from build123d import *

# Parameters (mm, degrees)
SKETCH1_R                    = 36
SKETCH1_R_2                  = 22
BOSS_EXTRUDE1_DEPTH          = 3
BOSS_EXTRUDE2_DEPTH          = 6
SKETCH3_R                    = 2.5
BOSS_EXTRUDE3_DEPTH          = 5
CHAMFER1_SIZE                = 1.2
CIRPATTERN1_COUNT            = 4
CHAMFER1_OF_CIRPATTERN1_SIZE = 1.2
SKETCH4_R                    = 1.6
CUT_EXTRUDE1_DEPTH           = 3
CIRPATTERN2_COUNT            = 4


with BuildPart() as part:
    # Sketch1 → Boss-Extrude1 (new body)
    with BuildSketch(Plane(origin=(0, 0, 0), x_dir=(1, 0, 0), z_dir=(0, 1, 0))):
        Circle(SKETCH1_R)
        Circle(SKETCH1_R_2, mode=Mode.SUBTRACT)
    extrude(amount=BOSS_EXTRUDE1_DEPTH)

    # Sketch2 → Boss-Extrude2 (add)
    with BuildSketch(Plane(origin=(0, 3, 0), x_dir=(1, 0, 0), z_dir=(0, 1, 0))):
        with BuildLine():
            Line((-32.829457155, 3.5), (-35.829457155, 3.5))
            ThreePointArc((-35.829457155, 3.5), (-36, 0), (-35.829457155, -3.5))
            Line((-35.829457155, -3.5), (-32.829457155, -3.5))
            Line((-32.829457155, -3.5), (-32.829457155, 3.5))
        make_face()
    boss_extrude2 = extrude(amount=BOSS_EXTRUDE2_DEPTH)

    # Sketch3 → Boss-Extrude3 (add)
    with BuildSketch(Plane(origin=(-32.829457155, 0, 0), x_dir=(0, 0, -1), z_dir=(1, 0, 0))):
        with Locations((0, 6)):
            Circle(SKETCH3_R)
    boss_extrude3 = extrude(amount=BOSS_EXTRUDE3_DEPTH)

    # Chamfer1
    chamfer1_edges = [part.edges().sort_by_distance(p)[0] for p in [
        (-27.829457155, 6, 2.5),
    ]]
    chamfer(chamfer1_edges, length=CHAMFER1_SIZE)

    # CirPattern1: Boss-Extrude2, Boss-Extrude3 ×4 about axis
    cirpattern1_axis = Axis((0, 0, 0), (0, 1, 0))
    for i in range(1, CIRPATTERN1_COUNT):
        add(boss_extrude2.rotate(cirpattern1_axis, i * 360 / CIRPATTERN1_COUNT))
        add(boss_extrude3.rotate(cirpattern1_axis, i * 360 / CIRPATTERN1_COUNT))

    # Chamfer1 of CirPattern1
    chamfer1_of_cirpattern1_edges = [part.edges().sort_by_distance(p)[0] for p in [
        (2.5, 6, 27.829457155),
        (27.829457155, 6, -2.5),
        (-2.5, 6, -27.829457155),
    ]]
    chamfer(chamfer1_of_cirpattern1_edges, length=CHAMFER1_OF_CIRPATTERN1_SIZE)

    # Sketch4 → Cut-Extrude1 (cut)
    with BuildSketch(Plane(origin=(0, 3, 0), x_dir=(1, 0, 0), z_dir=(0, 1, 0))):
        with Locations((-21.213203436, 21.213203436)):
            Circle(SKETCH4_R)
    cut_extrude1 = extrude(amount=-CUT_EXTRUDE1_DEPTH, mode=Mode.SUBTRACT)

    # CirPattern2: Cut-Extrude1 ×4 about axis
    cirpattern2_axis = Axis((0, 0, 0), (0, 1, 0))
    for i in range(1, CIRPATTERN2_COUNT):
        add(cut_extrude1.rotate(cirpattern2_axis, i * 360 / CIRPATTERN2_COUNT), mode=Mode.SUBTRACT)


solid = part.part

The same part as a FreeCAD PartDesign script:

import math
import FreeCAD as App
import Part
import Sketcher
Q = App.Units.Quantity


def edges_at(feature, points):
    """Names of the edges that pass closest to the given points."""
    edges = feature.Shape.Edges
    near = lambda p: min(range(len(edges)), key=lambda i: edges[i].distToShape(Part.Vertex(*p))[0])
    return sorted({f"Edge{near(p) + 1}" for p in points})

doc = App.newDocument("Part")
body = doc.addObject("PartDesign::Body", "Body")

sketch1 = doc.addObject("Sketcher::SketchObject", "Sketch")
body.addObject(sketch1)
sketch1.AttachmentSupport = (doc.XZ_Plane, [""])
sketch1.MapMode = "FlatFace"
sketch1.addGeometry([
    Part.Circle(App.Vector(0, 0, 0), App.Vector(0, 0, 1), 36),
    Part.Circle(App.Vector(0, 0, 0), App.Vector(0, 0, 1), 22),
], False)
sketch1.addConstraint([
    Sketcher.Constraint("Coincident", 0, 3, -1, 1),
    Sketcher.Constraint("Coincident", 1, 3, -1, 1),
    Sketcher.Constraint("Diameter", 0, Q("72 mm")),
    Sketcher.Constraint("Diameter", 1, Q("44 mm")),
])
pad1 = doc.addObject("PartDesign::Pad", "Pad")
body.addObject(pad1)
pad1.Profile = sketch1
pad1.Length = 3
pad1.Reversed = True

sketch2 = doc.addObject("Sketcher::SketchObject", "Sketch001")
body.addObject(sketch2)
sketch2.AttachmentSupport = (doc.XZ_Plane, [""])
sketch2.MapMode = "FlatFace"
sketch2.AttachmentOffset = App.Placement(App.Vector(0, 0, -3), App.Rotation())
sketch2.addGeometry([
    Part.LineSegment(App.Vector(-32.8, -3.5, 0), App.Vector(-35.8, -3.5, 0)),
    Part.ArcOfCircle(Part.Circle(App.Vector(0, 0, 0), App.Vector(0, 0, 1), 36), math.radians(174.42), math.radians(185.58)),
    Part.LineSegment(App.Vector(-35.8, 3.5, 0), App.Vector(-32.8, 3.5, 0)),
    Part.LineSegment(App.Vector(-32.8, 3.5, 0), App.Vector(-32.8, -3.5, 0)),
], False)
sketch2.addConstraint([
    Sketcher.Constraint("Coincident", 0, 2, 1, 2),
    Sketcher.Constraint("Coincident", 1, 1, 2, 1),
    Sketcher.Constraint("Coincident", 2, 2, 3, 1),
    Sketcher.Constraint("Coincident", 3, 2, 0, 1),
    Sketcher.Constraint("Horizontal", 0),
    Sketcher.Constraint("Horizontal", 2),
    Sketcher.Constraint("Vertical", 3),
    Sketcher.Constraint("Coincident", 1, 3, -1, 1),
    Sketcher.Constraint("Vertical", 0, 2, 1, 1),
    Sketcher.Constraint("Radius", 1, Q("36 mm")),
    Sketcher.Constraint("DistanceX", 0, 2, 0, 1, Q("3 mm")),
    Sketcher.Constraint("DistanceY", 3, 2, 3, 1, Q("7 mm")),
])
pad2 = doc.addObject("PartDesign::Pad", "Pad001")
body.addObject(pad2)
pad2.Profile = sketch2
pad2.Length = 6
pad2.Reversed = True

sketch3 = doc.addObject("Sketcher::SketchObject", "Sketch002")
body.addObject(sketch3)
sketch3.AttachmentSupport = (doc.YZ_Plane, [""])
sketch3.MapMode = "FlatFace"
sketch3.AttachmentOffset = App.Placement(App.Vector(0, 0, -32.829457), App.Rotation())
sketch3.addGeometry(Part.Circle(App.Vector(6, 0, 0), App.Vector(0, 0, 1), 2.5), False)
sketch3.addConstraint([
    Sketcher.Constraint("PointOnObject", 0, 3, -1),
    Sketcher.Constraint("Diameter", 0, Q("5 mm")),
    Sketcher.Constraint("DistanceX", -1, 1, 0, 3, Q("6 mm")),
])
pad3 = doc.addObject("PartDesign::Pad", "Pad002")
body.addObject(pad3)
pad3.Profile = sketch3
pad3.Length = 5
doc.recompute()

chamfer = doc.addObject("PartDesign::Chamfer", "Chamfer")
body.addObject(chamfer)
chamfer.Base = (pad3, edges_at(pad3, [(-27.829, 6, 2.5)]))
chamfer.Size = 1.2
doc.recompute()

polarpattern = doc.addObject("PartDesign::PolarPattern", "PolarPattern")
body.addObject(polarpattern)
polarpattern.Originals = [pad2, pad3]
polarpattern.Axis = (doc.Y_Axis, [""])
polarpattern.Angle = 360
polarpattern.Occurrences = 4
body.Tip = polarpattern
doc.recompute()

chamfer2 = doc.addObject("PartDesign::Chamfer", "Chamfer001")
body.addObject(chamfer2)
chamfer2.Base = (polarpattern, edges_at(polarpattern, [(2.5, 6, 27.829), (27.829, 6, -2.5), (-2.5, 6, -27.829)]))
chamfer2.Size = 1.2

sketch4 = doc.addObject("Sketcher::SketchObject", "Sketch003")
body.addObject(sketch4)
sketch4.AttachmentSupport = (doc.XZ_Plane, [""])
sketch4.MapMode = "FlatFace"
sketch4.AttachmentOffset = App.Placement(App.Vector(0, 0, -3), App.Rotation())
sketch4.addGeometry(Part.Circle(App.Vector(-21.2, -21.2, 0), App.Vector(0, 0, 1), 1.6), False)
sketch4.addConstraint([
    Sketcher.Constraint("Diameter", 0, Q("3.2 mm")),
    Sketcher.Constraint("DistanceX", 0, 3, -1, 1, Q("21.213203 mm")),
    Sketcher.Constraint("DistanceY", 0, 3, -1, 1, Q("21.213203 mm")),
])
pocket1 = doc.addObject("PartDesign::Pocket", "Pocket")
body.addObject(pocket1)
pocket1.Profile = sketch4
pocket1.Length = 3
pocket1.Reversed = True
doc.recompute()

polarpattern2 = doc.addObject("PartDesign::PolarPattern", "PolarPattern001")
body.addObject(polarpattern2)
polarpattern2.Originals = [pocket1]
polarpattern2.Axis = (doc.Y_Axis, [""])
polarpattern2.Angle = 360
polarpattern2.Occurrences = 4
body.Tip = polarpattern2

doc.recompute()
